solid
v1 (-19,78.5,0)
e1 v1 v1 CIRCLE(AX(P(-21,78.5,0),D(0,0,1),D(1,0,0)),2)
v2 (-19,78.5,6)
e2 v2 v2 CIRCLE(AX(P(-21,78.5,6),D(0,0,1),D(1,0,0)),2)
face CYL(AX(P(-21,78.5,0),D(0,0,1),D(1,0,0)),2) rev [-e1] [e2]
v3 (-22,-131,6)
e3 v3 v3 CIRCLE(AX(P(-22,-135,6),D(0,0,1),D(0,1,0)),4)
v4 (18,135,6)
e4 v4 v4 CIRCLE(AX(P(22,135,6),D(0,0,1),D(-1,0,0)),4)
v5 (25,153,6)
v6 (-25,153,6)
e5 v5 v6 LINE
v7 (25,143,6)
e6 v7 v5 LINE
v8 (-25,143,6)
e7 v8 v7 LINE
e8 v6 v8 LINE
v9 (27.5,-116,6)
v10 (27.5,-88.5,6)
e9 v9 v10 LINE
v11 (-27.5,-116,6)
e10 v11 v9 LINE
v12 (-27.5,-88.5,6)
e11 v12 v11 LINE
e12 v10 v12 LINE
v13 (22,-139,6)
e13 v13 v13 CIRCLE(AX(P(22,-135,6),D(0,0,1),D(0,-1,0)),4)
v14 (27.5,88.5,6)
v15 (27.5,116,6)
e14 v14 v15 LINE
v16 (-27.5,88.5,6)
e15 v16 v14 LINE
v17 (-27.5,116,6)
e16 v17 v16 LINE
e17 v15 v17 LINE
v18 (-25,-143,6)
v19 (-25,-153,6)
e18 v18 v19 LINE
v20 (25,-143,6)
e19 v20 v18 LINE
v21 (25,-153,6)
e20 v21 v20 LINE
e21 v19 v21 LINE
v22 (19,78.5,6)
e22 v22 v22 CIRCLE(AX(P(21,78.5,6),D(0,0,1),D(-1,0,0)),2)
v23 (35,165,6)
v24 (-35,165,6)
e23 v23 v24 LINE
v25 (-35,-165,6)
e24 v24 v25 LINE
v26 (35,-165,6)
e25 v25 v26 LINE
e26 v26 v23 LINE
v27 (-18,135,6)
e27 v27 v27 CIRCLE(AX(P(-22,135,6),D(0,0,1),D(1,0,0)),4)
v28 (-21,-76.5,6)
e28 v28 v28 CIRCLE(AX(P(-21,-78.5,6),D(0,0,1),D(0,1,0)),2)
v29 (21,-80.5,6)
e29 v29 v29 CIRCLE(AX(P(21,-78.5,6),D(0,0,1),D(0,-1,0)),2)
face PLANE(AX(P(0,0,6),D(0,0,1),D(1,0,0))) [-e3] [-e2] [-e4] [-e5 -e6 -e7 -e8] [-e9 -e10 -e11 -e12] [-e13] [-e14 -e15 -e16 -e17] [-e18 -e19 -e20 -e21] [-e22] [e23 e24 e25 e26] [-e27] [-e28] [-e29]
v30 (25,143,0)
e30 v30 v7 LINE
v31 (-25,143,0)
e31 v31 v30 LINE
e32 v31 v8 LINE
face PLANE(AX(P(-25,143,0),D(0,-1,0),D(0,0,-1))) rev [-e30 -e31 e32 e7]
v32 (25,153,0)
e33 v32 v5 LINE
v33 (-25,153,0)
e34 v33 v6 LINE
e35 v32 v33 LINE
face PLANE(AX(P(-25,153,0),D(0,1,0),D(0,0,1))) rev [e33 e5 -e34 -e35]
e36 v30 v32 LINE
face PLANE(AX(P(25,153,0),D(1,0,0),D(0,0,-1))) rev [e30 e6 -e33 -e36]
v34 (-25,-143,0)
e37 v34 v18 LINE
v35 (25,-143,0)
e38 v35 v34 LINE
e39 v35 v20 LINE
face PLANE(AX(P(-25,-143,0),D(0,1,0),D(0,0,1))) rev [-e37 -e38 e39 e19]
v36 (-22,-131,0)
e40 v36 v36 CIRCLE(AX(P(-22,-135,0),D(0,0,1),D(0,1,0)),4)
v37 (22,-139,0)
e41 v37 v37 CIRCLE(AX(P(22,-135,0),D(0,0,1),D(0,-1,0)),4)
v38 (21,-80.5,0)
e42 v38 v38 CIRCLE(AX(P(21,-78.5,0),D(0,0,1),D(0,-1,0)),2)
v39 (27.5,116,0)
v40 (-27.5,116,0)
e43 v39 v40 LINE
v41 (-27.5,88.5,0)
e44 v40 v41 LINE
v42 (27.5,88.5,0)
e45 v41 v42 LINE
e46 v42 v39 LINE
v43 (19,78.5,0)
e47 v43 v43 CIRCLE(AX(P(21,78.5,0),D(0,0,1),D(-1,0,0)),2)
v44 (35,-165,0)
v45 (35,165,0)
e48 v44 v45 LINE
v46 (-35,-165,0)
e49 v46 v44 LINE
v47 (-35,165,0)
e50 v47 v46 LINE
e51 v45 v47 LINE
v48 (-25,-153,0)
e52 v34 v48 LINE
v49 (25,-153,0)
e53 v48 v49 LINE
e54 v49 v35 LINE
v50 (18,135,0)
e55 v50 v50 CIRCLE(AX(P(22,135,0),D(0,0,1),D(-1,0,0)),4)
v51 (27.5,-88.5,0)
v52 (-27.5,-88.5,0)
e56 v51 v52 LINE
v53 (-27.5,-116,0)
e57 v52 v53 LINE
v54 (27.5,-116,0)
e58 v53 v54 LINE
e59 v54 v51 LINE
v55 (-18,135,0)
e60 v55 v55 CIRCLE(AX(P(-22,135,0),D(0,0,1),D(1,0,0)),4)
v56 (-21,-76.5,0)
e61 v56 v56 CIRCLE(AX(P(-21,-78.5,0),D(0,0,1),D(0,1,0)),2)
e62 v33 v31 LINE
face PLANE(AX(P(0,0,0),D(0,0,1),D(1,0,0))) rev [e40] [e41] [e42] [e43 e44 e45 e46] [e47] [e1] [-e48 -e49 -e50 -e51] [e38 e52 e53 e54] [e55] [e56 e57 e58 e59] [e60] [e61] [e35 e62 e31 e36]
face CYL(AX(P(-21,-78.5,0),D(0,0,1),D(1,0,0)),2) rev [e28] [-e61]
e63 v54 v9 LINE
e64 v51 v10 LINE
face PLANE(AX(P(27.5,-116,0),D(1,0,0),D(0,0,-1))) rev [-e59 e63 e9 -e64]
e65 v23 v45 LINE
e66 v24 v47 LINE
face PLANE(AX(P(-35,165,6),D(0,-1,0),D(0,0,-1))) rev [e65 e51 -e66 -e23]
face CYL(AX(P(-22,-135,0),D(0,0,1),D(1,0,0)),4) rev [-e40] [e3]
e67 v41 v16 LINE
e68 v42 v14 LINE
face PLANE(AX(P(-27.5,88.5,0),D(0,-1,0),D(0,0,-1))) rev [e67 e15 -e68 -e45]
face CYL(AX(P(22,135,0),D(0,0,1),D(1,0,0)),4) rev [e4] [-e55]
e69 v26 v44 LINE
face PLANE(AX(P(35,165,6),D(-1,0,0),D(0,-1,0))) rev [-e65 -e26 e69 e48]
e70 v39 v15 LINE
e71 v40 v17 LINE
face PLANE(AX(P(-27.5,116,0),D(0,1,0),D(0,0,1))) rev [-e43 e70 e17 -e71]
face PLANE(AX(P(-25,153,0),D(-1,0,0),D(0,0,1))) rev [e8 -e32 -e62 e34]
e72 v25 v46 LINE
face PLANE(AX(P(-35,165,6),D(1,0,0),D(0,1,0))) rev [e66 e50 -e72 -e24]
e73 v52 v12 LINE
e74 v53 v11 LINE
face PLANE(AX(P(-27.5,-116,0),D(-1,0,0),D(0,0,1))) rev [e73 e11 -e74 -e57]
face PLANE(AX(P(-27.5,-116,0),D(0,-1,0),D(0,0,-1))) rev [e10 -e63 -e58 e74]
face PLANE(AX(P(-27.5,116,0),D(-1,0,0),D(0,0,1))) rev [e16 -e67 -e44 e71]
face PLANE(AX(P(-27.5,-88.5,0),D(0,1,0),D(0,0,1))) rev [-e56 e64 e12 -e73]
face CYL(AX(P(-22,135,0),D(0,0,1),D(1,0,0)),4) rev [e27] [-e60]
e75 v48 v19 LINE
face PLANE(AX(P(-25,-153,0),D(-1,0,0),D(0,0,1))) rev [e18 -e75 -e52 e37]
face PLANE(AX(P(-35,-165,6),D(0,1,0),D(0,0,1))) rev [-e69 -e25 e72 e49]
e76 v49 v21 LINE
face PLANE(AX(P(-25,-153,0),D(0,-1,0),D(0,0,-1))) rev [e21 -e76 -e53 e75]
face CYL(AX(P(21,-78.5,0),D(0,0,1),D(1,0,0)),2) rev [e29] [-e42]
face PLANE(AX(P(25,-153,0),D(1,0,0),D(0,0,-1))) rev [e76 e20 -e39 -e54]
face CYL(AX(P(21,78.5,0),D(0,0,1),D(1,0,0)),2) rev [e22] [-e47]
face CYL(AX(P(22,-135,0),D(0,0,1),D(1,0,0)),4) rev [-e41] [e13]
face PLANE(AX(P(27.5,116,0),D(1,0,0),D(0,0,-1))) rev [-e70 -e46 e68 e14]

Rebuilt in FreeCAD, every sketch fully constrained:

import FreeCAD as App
import Part
import Sketcher
from FreeCAD import Vector

doc = App.newDocument("Part")
body = doc.addObject("PartDesign::Body", "Body")

# Sketch on XY plane
sketch1 = body.newObject("Sketcher::SketchObject", "Sketch")
sketch1.AttachmentSupport = (doc.getObject("XY_Plane"), [""])
sketch1.MapMode = "FlatFace"
sketch1.addGeometry([
    Part.LineSegment(Vector(-35, 165, 0), Vector(-35, -165, 0)),
    Part.LineSegment(Vector(-35, -165, 0), Vector(35, -165, 0)),
    Part.LineSegment(Vector(35, -165, 0), Vector(35, 165, 0)),
    Part.LineSegment(Vector(35, 165, 0), Vector(-35, 165, 0)),
], False)
sketch1.addConstraint([
    Sketcher.Constraint("Coincident", 0, 2, 1, 1),
    Sketcher.Constraint("Coincident", 1, 2, 2, 1),
    Sketcher.Constraint("Coincident", 2, 2, 3, 1),
    Sketcher.Constraint("Coincident", 3, 2, 0, 1),
    Sketcher.Constraint("Vertical", 0),
    Sketcher.Constraint("Horizontal", 1),
    Sketcher.Constraint("Vertical", 2),
    Sketcher.Constraint("Horizontal", 3),
    Sketcher.Constraint("Symmetric", 0, 2, 2, 2, -1, 1),
    Sketcher.Constraint("DistanceX", 1, 1, 1, 2, 70.0),
    Sketcher.Constraint("DistanceY", 0, 2, 0, 1, 330.0),
])
pad1 = body.newObject("PartDesign::Pad", "Pad")
pad1.Profile = sketch1
pad1.Length = 6

# Sketch on XY plane
sketch2 = body.newObject("Sketcher::SketchObject", "Sketch001")
sketch2.AttachmentSupport = (doc.getObject("XY_Plane"), [""])
sketch2.MapMode = "FlatFace"
sketch2.AttachmentOffset = App.Placement(Vector(0, 0, 6), App.Rotation())
sketch2.addGeometry([
    Part.Circle(Vector(-21, 78.5, 0), Vector(0, 0, 1), 2),  # 0
    Part.Circle(Vector(21, 78.5, 0), Vector(0, 0, 1), 2),  # 1
    Part.Circle(Vector(-22, 135, 0), Vector(0, 0, 1), 4),  # 2
    Part.Circle(Vector(22, 135, 0), Vector(0, 0, 1), 4),  # 3
    Part.Circle(Vector(-21, -78.5, 0), Vector(0, 0, 1), 2),  # 4
    Part.Circle(Vector(21, -78.5, 0), Vector(0, 0, 1), 2),  # 5
    Part.Circle(Vector(-22, -135, 0), Vector(0, 0, 1), 4),  # 6
    Part.Circle(Vector(22, -135, 0), Vector(0, 0, 1), 4),  # 7
    Part.LineSegment(Vector(-27.5, 116, 0), Vector(-27.5, 88.5, 0)),  # 8
    Part.LineSegment(Vector(-27.5, 88.5, 0), Vector(27.5, 88.5, 0)),  # 9
    Part.LineSegment(Vector(27.5, 88.5, 0), Vector(27.5, 116, 0)),  # 10
    Part.LineSegment(Vector(27.5, 116, 0), Vector(-27.5, 116, 0)),  # 11
    Part.LineSegment(Vector(-25, 153, 0), Vector(-25, 143, 0)),  # 12
    Part.LineSegment(Vector(-25, 143, 0), Vector(25, 143, 0)),  # 13
    Part.LineSegment(Vector(25, 143, 0), Vector(25, 153, 0)),  # 14
    Part.LineSegment(Vector(25, 153, 0), Vector(-25, 153, 0)),  # 15
    Part.LineSegment(Vector(-27.5, -88.5, 0), Vector(-27.5, -116, 0)),  # 16
    Part.LineSegment(Vector(-27.5, -116, 0), Vector(27.5, -116, 0)),  # 17
    Part.LineSegment(Vector(27.5, -116, 0), Vector(27.5, -88.5, 0)),  # 18
    Part.LineSegment(Vector(27.5, -88.5, 0), Vector(-27.5, -88.5, 0)),  # 19
    Part.LineSegment(Vector(-25, -143, 0), Vector(-25, -153, 0)),  # 20
    Part.LineSegment(Vector(-25, -153, 0), Vector(25, -153, 0)),  # 21
    Part.LineSegment(Vector(25, -153, 0), Vector(25, -143, 0)),  # 22
    Part.LineSegment(Vector(25, -143, 0), Vector(-25, -143, 0)),  # 23
], False)
sketch2.addConstraint([
    Sketcher.Constraint("Coincident", 8, 2, 9, 1),
    Sketcher.Constraint("Coincident", 9, 2, 10, 1),
    Sketcher.Constraint("Coincident", 10, 2, 11, 1),
    Sketcher.Constraint("Coincident", 11, 2, 8, 1),
    Sketcher.Constraint("Coincident", 12, 2, 13, 1),
    Sketcher.Constraint("Coincident", 13, 2, 14, 1),
    Sketcher.Constraint("Coincident", 14, 2, 15, 1),
    Sketcher.Constraint("Coincident", 15, 2, 12, 1),
    Sketcher.Constraint("Coincident", 16, 2, 17, 1),
    Sketcher.Constraint("Coincident", 17, 2, 18, 1),
    Sketcher.Constraint("Coincident", 18, 2, 19, 1),
    Sketcher.Constraint("Coincident", 19, 2, 16, 1),
    Sketcher.Constraint("Coincident", 20, 2, 21, 1),
    Sketcher.Constraint("Coincident", 21, 2, 22, 1),
    Sketcher.Constraint("Coincident", 22, 2, 23, 1),
    Sketcher.Constraint("Coincident", 23, 2, 20, 1),
    Sketcher.Constraint("Vertical", 8),
    Sketcher.Constraint("Horizontal", 9),
    Sketcher.Constraint("Vertical", 10),
    Sketcher.Constraint("Horizontal", 11),
    Sketcher.Constraint("Vertical", 12),
    Sketcher.Constraint("Horizontal", 13),
    Sketcher.Constraint("Vertical", 14),
    Sketcher.Constraint("Horizontal", 15),
    Sketcher.Constraint("Vertical", 16),
    Sketcher.Constraint("Horizontal", 17),
    Sketcher.Constraint("Vertical", 18),
    Sketcher.Constraint("Horizontal", 19),
    Sketcher.Constraint("Vertical", 20),
    Sketcher.Constraint("Horizontal", 21),
    Sketcher.Constraint("Vertical", 22),
    Sketcher.Constraint("Horizontal", 23),
    Sketcher.Constraint("Equal", 0, 1),
    Sketcher.Constraint("Equal", 2, 3),
    Sketcher.Constraint("Equal", 1, 4),
    Sketcher.Constraint("Equal", 4, 5),
    Sketcher.Constraint("Equal", 3, 6),
    Sketcher.Constraint("Equal", 6, 7),
    Sketcher.Constraint("Symmetric", 1, 3, 4, 3, -1, 1),
    Sketcher.Constraint("Symmetric", 0, 3, 5, 3, -1, 1),
    Sketcher.Constraint("Symmetric", 3, 3, 6, 3, -1, 1),
    Sketcher.Constraint("Symmetric", 2, 3, 7, 3, -1, 1),
    Sketcher.Constraint("Symmetric", 10, 2, 16, 2, -1, 1),
    Sketcher.Constraint("Symmetric", 8, 2, 18, 2, -1, 1),
    Sketcher.Constraint("Symmetric", 14, 2, 20, 2, -1, 1),
    Sketcher.Constraint("Symmetric", 12, 2, 22, 2, -1, 1),
    Sketcher.Constraint("Symmetric", 0, 3, 1, 3, -2),
    Sketcher.Constraint("Symmetric", 2, 3, 3, 3, -2),
    Sketcher.Constraint("Vertical", 11, 2, 16, 2),
    Sketcher.Constraint("Vertical", 15, 2, 20, 2),
    Sketcher.Constraint("Diameter", 0, 4.0),
    Sketcher.Constraint("Diameter", 2, 8.0),
    Sketcher.Constraint("DistanceX", 9, 1, 9, 2, 55.0),
    Sketcher.Constraint("DistanceX", 13, 1, 13, 2, 50.0),
    Sketcher.Constraint("DistanceY", 12, 2, 12, 1, 10.0),
    Sketcher.Constraint("DistanceY", 8, 2, 8, 1, 27.5),
    Sketcher.Constraint("DistanceX", 0, 3, -1, 1, 21.0),
    Sketcher.Constraint("DistanceX", 2, 3, -1, 1, 22.0),
    Sketcher.Constraint("DistanceY", -1, 1, 2, 3, 135.0),
    Sketcher.Constraint("DistanceY", -1, 1, 10, 2, 116.0),
    Sketcher.Constraint("DistanceY", -1, 1, 12, 2, 143.0),
    Sketcher.Constraint("DistanceY", 4, 3, 0, 3, 157.0),
])
pocket1 = body.newObject("PartDesign::Pocket", "Pocket")
pocket1.Profile = sketch2
pocket1.Type = "ThroughAll"

doc.recompute()
